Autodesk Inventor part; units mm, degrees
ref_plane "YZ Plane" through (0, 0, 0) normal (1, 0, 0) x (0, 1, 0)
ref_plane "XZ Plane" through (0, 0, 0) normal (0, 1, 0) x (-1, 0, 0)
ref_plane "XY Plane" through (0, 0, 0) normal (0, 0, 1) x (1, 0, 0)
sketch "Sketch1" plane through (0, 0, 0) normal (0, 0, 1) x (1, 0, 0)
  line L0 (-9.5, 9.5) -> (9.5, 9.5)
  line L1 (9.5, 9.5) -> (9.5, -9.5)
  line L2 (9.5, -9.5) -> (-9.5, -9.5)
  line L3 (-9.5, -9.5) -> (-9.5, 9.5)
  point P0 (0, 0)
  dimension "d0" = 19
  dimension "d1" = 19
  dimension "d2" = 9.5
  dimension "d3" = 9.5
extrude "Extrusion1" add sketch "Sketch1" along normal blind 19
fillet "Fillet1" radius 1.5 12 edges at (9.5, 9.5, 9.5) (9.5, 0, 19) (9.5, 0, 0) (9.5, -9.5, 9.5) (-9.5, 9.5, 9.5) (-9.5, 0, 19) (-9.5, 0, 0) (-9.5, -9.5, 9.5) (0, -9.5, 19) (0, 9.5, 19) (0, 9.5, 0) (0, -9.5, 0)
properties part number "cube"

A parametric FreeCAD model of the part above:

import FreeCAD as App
import Part
import Sketcher
from FreeCAD import Vector


def add_polygon(sketch, points):
    """Adds a closed chain of lines whose ends are joined by coincident constraints."""
    first, n = sketch.GeometryCount, len(points)
    for a, b in zip(points, points[1:] + points[:1]):
        sketch.addGeometry(Part.LineSegment(App.Vector(*a, 0), App.Vector(*b, 0)), False)
    for i in range(n):
        sketch.addConstraint(Sketcher.Constraint("Coincident", first + i, 2, first + (i + 1) % n, 1))

doc = App.newDocument("Part")
body = doc.addObject("PartDesign::Body", "Body")

# Sketch on XY plane
sketch1 = body.newObject("Sketcher::SketchObject", "Sketch")
sketch1.AttachmentSupport = (doc.getObject("XY_Plane"), [""])
sketch1.MapMode = "FlatFace"
add_polygon(sketch1, [(9.5, 9.5), (-9.5, 9.5), (-9.5, -9.5), (9.5, -9.5)])  # lines 0-3
sketch1.addConstraint(Sketcher.Constraint("Horizontal", 0))
sketch1.addConstraint(Sketcher.Constraint("Vertical", 1))
sketch1.addConstraint(Sketcher.Constraint("Horizontal", 2))
sketch1.addConstraint(Sketcher.Constraint("Vertical", 3))
sketch1.addConstraint(Sketcher.Constraint("Symmetric", 0, 2, 2, 2, -1, 1))
sketch1.addConstraint(Sketcher.Constraint("Equal", 2, 1))
sketch1.addConstraint(Sketcher.Constraint("DistanceX", 0, 2, 0, 1, 19.0))
pad1 = body.newObject("PartDesign::Pad", "Pad")
pad1.Profile = sketch1
pad1.Length = 19
doc.recompute()

fillet = body.newObject("PartDesign::Fillet", "Fillet")
fillet.Base = (pad1, ["Edge1"])
fillet.UseAllEdges = True
fillet.Radius = 1.5

doc.recompute()
